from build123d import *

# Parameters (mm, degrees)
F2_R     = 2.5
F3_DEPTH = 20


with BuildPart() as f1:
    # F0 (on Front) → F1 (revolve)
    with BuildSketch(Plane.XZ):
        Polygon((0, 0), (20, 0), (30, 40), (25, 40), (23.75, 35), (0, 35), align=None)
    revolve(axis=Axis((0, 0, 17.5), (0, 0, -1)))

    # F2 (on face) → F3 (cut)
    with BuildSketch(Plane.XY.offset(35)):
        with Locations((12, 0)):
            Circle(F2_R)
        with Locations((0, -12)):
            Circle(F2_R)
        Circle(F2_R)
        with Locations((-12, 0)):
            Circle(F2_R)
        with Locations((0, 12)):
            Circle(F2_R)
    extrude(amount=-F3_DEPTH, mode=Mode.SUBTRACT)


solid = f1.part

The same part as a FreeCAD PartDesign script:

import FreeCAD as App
import Part
import Sketcher

doc = App.newDocument("Part")
body = doc.addObject("PartDesign::Body", "Body")

# Sketch on XZ plane
sketch1 = body.newObject("Sketcher::SketchObject", "Sketch")
sketch1.AttachmentSupport = (doc.getObject("XZ_Plane"), [""])
sketch1.MapMode = "FlatFace"
sketch1.addGeometry([
    Part.LineSegment(App.Vector(0, 0, 0), App.Vector(20, 0, 0)),  # 0
    Part.LineSegment(App.Vector(20, 0, 0), App.Vector(30, 40, 0)),  # 1
    Part.LineSegment(App.Vector(30, 40, 0), App.Vector(25, 40, 0)),  # 2
    Part.LineSegment(App.Vector(25, 40, 0), App.Vector(24, 35, 0)),  # 3
    Part.LineSegment(App.Vector(24, 35, 0), App.Vector(0, 35, 0)),  # 4
    Part.LineSegment(App.Vector(0, 35, 0), App.Vector(0, 0, 0)),  # 5
], False)
sketch1.addConstraint([
    Sketcher.Constraint("Coincident", 0, 2, 1, 1),
    Sketcher.Constraint("Coincident", 1, 2, 2, 1),
    Sketcher.Constraint("Coincident", 2, 2, 3, 1),
    Sketcher.Constraint("Coincident", 3, 2, 4, 1),
    Sketcher.Constraint("Coincident", 4, 2, 5, 1),
    Sketcher.Constraint("Coincident", 5, 2, 0, 1),
    Sketcher.Constraint("Horizontal", 0),
    Sketcher.Constraint("Horizontal", 2),
    Sketcher.Constraint("Horizontal", 4),
    Sketcher.Constraint("Vertical", 5),
    Sketcher.Constraint("Coincident", 5, 2, -1, 1),
    Sketcher.Constraint("Parallel", 1, 3),
    Sketcher.Constraint("DistanceX", 0, 1, 0, 2, 20.0),
    Sketcher.Constraint("DistanceX", 2, 2, 2, 1, 5.0),
    Sketcher.Constraint("DistanceY", 5, 2, 5, 1, 35.0),
    Sketcher.Constraint("DistanceX", -1, 1, 1, 2, 30.0),
    Sketcher.Constraint("DistanceY", -1, 1, 1, 2, 40.0),
])
revolution = body.newObject("PartDesign::Revolution", "Revolution")
revolution.Profile = sketch1
revolution.ReferenceAxis = (sketch1, ["V_Axis"])
revolution.Angle = 360

# Sketch on XY plane
sketch2 = body.newObject("Sketcher::SketchObject", "Sketch001")
sketch2.AttachmentSupport = (doc.getObject("XY_Plane"), [""])
sketch2.MapMode = "FlatFace"
sketch2.AttachmentOffset = App.Placement(App.Vector(0, 0, 35), App.Rotation())
sketch2.addGeometry([
    Part.Circle(App.Vector(12, 0, 0), App.Vector(0, 0, 1), 2.5),  # 0
    Part.Circle(App.Vector(0, -12, 0), App.Vector(0, 0, 1), 2.5),  # 1
    Part.Circle(App.Vector(0, 0, 0), App.Vector(0, 0, 1), 2.5),  # 2
    Part.Circle(App.Vector(-12, 0, 0), App.Vector(0, 0, 1), 2.5),  # 3
    Part.Circle(App.Vector(0, 12, 0), App.Vector(0, 0, 1), 2.5),  # 4
], False)
sketch2.addConstraint([
    Sketcher.Constraint("Coincident", 2, 3, -1, 1),
    Sketcher.Constraint("Equal", 0, 1),
    Sketcher.Constraint("Equal", 1, 2),
    Sketcher.Constraint("Equal", 2, 3),
    Sketcher.Constraint("Equal", 3, 4),
    Sketcher.Constraint("Symmetric", 0, 3, 3, 3, -1, 1),
    Sketcher.Constraint("Symmetric", 1, 3, 4, 3, -1, 1),
    Sketcher.Constraint("PointOnObject", 0, 3, -1),
    Sketcher.Constraint("PointOnObject", 1, 3, -2),
    Sketcher.Constraint("Diameter", 0, 5.0),
    Sketcher.Constraint("DistanceX", -1, 1, 0, 3, 12.0),
    Sketcher.Constraint("DistanceY", 1, 3, -1, 1, 12.0),
])
pocket1 = body.newObject("PartDesign::Pocket", "Pocket")
pocket1.Profile = sketch2
pocket1.Length = 20

doc.recompute()
